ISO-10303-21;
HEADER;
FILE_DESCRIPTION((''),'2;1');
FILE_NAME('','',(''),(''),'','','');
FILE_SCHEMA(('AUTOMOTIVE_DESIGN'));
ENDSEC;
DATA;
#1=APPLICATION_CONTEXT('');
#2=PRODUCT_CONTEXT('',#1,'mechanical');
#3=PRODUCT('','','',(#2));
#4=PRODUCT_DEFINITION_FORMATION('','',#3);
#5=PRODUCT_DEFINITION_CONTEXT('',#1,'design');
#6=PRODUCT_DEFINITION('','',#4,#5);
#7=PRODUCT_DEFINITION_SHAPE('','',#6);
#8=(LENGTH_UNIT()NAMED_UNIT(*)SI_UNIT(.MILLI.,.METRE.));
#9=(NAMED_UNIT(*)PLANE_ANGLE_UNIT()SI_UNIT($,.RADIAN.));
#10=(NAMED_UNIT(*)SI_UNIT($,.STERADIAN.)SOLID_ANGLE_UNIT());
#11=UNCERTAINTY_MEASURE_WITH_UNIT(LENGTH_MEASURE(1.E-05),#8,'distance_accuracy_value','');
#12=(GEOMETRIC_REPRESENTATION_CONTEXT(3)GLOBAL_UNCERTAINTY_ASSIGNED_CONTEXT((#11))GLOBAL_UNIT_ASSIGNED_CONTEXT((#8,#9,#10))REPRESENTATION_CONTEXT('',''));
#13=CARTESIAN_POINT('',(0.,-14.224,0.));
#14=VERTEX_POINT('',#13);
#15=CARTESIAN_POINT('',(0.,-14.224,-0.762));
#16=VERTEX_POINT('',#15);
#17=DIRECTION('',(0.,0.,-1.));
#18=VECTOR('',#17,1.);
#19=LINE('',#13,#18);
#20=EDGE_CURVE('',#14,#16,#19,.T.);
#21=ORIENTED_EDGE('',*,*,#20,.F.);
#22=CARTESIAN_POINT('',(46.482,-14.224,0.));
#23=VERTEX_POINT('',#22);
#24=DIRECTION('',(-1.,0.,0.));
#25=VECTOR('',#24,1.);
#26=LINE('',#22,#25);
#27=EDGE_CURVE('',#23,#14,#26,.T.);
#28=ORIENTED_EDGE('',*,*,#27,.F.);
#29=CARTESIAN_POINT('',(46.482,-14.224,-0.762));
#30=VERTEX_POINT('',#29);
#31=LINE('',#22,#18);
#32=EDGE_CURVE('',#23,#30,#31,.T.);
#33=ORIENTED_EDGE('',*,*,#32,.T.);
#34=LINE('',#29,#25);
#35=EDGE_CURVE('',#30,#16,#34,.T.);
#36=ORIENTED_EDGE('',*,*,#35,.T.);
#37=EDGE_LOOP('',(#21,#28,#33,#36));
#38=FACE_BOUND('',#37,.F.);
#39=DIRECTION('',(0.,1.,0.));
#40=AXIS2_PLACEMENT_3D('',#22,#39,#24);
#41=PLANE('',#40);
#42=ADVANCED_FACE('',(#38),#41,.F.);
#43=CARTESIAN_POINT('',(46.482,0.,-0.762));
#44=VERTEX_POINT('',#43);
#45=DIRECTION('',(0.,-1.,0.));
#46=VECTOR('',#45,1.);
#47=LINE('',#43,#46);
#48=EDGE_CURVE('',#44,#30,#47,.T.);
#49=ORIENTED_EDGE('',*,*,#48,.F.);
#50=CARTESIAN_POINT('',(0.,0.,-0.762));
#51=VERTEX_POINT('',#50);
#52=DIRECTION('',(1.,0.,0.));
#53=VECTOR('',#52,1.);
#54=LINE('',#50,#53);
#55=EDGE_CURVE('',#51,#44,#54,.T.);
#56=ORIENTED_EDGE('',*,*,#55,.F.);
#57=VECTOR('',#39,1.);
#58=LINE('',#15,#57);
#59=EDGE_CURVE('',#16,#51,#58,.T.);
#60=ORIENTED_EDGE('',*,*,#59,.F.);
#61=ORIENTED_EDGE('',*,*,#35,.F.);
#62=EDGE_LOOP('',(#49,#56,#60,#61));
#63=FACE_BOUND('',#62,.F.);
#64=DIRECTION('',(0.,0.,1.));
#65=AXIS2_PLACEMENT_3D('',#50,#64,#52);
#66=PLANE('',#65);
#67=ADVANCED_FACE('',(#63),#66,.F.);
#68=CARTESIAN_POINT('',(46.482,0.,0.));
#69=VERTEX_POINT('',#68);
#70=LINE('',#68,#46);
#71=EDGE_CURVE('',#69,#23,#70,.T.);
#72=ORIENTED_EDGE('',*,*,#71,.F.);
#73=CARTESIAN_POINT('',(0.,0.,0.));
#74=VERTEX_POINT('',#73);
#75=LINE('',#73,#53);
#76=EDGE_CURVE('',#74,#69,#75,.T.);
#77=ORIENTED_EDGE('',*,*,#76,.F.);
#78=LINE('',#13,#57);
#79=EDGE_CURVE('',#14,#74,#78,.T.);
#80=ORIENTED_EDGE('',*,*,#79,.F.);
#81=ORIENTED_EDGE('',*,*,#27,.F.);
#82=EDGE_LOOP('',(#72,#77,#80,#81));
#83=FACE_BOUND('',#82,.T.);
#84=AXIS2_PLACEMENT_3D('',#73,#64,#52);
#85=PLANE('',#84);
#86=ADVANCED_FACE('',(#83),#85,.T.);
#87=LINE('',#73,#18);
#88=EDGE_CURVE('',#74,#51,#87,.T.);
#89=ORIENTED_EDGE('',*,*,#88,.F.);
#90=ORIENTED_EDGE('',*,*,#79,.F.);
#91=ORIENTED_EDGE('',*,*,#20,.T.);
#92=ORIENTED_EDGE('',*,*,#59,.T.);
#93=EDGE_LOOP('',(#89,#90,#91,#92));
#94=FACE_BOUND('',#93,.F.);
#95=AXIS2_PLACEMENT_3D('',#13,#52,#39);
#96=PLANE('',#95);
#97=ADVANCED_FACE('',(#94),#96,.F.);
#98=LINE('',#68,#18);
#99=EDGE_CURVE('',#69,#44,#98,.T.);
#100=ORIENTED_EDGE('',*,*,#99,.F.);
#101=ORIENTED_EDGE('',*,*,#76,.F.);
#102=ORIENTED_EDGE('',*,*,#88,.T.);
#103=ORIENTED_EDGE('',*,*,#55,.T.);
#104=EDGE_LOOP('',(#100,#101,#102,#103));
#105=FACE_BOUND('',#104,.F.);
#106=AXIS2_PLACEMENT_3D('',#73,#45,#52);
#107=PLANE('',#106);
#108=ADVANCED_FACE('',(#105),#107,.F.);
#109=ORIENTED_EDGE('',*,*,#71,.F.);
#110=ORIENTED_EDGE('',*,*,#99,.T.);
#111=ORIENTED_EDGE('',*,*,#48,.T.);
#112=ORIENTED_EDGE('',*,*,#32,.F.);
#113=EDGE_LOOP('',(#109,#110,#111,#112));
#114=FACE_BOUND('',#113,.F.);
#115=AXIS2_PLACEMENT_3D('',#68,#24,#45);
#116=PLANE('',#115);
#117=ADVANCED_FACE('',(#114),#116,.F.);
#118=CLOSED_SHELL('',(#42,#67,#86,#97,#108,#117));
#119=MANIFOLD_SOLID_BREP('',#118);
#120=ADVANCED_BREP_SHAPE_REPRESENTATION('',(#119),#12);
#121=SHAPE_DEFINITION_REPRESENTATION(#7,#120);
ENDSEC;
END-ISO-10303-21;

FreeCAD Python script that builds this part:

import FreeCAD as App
import Part
import Sketcher
from FreeCAD import Vector
Q = App.Units.Quantity


def add_polygon(sketch, points):
    """Adds a closed chain of lines whose ends are joined by coincident constraints."""
    first, n = sketch.GeometryCount, len(points)
    for a, b in zip(points, points[1:] + points[:1]):
        sketch.addGeometry(Part.LineSegment(App.Vector(*a, 0), App.Vector(*b, 0)), False)
    for i in range(n):
        sketch.addConstraint(Sketcher.Constraint("Coincident", first + i, 2, first + (i + 1) % n, 1))

doc = App.newDocument("Part")
body = doc.addObject("PartDesign::Body", "Body")

sketch1 = body.newObject("Sketcher::SketchObject", "Sketch")
sketch1.AttachmentSupport = (doc.getObject("XY_Plane"), [""])
sketch1.MapMode = "FlatFace"
add_polygon(sketch1, [(46.482, 0), (0, 0), (0, -14.224), (46.482, -14.224)])
sketch1.addConstraint(Sketcher.Constraint("Horizontal", 0))
sketch1.addConstraint(Sketcher.Constraint("Vertical", 1))
sketch1.addConstraint(Sketcher.Constraint("Horizontal", 2))
sketch1.addConstraint(Sketcher.Constraint("Vertical", 3))
sketch1.addConstraint(Sketcher.Constraint("Coincident", 0, 2, -1, 1))
sketch1.addConstraint(Sketcher.Constraint("DistanceX", 0, 2, 0, 1, Q("1.83 in")))
sketch1.addConstraint(Sketcher.Constraint("DistanceY", 1, 2, 1, 1, Q("0.56 in")))
pad1 = body.newObject("PartDesign::Pad", "Pad")
pad1.Profile = sketch1
pad1.Length = Q("0.03 in")
pad1.Reversed = True

doc.recompute()
